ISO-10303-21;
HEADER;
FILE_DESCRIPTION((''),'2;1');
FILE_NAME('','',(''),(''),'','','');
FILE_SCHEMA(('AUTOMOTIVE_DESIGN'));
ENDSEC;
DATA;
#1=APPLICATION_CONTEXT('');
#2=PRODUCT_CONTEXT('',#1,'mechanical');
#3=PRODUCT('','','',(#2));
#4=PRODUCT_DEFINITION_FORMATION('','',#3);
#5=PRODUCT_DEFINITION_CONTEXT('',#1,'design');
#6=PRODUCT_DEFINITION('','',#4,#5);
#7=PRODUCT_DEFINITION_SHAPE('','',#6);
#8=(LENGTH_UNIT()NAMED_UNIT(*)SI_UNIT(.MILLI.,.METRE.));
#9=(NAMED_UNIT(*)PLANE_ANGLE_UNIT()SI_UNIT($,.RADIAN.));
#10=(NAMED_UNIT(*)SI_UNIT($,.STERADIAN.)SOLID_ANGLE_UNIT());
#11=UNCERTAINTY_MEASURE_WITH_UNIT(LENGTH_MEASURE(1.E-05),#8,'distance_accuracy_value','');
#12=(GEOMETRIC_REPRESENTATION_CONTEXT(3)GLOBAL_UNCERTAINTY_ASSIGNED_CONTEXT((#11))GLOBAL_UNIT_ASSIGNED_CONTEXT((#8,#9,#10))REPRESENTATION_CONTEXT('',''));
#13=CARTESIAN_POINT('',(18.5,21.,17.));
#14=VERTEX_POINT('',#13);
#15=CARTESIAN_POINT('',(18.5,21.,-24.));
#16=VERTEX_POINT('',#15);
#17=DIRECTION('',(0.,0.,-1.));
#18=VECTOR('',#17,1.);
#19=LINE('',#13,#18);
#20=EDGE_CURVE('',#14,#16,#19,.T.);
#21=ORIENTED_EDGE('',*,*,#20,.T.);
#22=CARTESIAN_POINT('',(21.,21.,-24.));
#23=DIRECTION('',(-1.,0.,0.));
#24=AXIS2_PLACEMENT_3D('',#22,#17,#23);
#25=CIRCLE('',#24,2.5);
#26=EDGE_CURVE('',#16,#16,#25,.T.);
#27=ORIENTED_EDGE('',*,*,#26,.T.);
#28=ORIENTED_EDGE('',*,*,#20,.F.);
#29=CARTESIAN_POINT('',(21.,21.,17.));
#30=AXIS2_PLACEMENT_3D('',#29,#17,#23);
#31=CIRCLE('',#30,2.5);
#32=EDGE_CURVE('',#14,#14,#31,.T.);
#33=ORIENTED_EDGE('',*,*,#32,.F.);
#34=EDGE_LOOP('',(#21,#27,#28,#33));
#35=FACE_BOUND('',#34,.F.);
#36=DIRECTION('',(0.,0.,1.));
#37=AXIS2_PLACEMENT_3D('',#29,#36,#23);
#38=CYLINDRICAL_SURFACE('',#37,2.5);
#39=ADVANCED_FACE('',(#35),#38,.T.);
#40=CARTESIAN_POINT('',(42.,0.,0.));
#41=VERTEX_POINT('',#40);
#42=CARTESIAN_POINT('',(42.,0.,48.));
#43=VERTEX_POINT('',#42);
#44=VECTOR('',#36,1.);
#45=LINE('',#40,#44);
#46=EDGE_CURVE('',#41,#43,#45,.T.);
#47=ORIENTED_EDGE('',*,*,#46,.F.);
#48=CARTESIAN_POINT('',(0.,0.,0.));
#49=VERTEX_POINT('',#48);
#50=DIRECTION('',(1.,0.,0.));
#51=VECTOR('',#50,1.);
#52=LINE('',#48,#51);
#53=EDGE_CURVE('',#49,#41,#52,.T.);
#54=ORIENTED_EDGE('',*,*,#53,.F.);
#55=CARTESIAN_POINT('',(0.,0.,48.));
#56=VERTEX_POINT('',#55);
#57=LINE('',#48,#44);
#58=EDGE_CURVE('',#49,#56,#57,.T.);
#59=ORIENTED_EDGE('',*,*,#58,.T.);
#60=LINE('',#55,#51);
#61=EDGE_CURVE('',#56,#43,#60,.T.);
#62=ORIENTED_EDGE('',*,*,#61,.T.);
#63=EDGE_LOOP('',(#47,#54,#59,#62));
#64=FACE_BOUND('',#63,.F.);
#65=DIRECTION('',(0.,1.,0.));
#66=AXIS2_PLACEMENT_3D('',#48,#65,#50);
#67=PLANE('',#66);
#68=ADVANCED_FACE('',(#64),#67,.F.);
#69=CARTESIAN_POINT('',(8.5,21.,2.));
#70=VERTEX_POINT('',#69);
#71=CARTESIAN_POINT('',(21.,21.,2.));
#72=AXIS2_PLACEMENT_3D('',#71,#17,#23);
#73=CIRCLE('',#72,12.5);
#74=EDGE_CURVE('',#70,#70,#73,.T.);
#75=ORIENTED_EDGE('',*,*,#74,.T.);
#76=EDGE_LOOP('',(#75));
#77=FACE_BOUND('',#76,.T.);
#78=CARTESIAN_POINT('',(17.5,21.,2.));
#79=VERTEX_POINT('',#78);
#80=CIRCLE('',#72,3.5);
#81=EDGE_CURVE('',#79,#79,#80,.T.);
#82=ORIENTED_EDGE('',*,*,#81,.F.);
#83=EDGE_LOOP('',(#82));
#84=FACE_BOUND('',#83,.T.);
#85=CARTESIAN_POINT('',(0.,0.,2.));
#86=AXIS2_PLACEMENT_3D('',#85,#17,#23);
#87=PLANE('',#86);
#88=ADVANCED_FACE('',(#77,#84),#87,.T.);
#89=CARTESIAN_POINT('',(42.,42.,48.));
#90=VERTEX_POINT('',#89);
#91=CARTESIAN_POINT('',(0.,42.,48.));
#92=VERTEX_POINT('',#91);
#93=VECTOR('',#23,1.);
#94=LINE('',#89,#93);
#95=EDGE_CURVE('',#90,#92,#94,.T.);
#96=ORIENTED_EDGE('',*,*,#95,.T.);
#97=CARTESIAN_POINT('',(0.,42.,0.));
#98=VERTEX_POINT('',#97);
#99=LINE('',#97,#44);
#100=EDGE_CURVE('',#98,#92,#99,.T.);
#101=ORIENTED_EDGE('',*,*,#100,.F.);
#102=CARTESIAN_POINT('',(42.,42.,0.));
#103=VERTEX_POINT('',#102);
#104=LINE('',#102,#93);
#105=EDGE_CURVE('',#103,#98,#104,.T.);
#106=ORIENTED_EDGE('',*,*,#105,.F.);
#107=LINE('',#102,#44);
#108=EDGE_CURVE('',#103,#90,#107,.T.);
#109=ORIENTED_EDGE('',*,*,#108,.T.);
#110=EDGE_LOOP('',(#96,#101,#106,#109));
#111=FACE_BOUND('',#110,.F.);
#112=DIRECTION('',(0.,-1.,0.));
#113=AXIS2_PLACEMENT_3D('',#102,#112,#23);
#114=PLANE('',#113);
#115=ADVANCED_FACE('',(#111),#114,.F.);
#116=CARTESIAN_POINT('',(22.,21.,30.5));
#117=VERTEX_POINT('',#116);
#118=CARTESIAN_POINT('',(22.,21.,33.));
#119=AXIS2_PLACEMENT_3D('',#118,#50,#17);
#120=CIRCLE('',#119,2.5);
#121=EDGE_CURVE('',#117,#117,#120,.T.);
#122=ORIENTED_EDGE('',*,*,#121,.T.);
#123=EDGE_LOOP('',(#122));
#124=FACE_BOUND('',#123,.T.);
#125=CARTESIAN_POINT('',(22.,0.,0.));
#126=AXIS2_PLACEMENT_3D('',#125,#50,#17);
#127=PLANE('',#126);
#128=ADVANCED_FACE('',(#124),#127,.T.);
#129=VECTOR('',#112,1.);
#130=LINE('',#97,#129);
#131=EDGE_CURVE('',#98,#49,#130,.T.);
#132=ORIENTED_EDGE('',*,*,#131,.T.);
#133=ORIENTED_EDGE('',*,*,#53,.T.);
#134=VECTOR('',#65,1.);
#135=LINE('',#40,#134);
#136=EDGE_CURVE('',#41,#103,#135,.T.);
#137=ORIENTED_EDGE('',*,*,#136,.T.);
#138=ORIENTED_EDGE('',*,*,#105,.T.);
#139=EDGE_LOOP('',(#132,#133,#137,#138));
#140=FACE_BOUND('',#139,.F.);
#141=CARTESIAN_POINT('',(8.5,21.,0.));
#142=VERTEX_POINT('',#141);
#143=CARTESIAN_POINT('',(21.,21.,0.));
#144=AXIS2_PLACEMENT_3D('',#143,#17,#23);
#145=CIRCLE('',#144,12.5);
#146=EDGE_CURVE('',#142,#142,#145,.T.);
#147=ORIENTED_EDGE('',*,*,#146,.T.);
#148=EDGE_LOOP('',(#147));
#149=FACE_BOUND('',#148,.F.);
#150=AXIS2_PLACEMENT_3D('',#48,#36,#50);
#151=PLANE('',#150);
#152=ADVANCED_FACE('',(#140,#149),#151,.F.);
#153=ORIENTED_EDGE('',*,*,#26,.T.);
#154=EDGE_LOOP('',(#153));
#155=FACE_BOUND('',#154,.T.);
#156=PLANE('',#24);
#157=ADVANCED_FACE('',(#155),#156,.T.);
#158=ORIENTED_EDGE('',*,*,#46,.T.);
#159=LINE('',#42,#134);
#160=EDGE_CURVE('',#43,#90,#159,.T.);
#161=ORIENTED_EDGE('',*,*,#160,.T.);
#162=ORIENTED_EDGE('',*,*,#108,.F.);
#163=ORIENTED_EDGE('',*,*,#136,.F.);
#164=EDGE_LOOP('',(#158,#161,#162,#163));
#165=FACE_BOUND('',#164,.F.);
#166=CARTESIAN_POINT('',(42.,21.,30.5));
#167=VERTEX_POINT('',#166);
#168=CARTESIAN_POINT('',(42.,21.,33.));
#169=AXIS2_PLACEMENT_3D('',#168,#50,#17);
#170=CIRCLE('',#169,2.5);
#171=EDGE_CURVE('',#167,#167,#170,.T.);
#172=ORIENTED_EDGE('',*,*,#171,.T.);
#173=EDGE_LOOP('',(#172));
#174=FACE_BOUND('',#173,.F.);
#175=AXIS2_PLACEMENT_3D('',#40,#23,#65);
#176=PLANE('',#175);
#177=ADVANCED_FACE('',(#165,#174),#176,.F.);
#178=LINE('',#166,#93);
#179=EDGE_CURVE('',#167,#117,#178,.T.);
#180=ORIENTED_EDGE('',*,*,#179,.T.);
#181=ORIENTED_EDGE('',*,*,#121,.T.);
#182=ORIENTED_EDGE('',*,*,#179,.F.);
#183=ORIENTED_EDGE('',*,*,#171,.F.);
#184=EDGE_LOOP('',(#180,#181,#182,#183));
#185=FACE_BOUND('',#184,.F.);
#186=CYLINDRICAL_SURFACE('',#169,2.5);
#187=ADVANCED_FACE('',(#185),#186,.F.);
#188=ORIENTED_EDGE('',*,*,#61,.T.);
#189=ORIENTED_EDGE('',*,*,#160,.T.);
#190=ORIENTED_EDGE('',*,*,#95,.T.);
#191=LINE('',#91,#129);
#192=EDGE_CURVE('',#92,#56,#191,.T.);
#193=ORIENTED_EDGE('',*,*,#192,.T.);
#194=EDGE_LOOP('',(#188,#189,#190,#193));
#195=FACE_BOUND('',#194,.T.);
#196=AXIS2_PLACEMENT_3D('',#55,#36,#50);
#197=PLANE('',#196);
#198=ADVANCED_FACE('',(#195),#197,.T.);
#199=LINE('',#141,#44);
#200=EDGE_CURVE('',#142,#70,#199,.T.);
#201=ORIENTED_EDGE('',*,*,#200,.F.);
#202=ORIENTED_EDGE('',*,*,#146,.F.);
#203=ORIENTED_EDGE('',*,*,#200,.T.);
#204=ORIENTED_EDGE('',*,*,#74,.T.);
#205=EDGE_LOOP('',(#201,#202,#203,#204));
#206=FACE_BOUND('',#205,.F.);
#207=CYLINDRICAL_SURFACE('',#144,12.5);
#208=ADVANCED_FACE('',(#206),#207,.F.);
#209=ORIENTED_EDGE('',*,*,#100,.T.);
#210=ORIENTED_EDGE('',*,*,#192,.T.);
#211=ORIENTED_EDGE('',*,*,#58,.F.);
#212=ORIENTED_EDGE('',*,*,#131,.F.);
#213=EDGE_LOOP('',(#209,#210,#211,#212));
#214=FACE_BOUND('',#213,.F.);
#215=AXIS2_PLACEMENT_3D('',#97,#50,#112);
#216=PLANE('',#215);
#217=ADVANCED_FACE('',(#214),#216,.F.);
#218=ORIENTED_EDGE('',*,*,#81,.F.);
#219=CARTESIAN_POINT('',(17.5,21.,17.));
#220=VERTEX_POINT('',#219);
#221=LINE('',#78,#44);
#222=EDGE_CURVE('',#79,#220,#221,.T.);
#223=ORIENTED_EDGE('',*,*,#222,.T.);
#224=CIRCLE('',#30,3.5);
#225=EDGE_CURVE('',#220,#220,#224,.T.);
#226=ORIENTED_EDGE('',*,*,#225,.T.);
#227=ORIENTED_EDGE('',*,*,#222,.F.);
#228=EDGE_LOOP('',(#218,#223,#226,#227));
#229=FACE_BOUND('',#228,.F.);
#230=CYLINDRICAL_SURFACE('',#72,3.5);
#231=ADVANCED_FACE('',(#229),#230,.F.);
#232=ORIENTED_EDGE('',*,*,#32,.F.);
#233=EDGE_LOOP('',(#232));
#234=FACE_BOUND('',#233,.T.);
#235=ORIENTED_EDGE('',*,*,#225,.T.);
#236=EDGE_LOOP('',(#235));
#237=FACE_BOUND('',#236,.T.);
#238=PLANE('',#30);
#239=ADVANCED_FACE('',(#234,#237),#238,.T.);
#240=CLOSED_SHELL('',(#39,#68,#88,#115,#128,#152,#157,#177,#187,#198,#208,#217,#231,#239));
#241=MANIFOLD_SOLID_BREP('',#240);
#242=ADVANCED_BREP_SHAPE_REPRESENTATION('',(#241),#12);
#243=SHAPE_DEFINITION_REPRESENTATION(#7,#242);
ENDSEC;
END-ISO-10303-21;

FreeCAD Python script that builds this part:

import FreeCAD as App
import Part
import Sketcher

V = App.Vector
Q = App.Units.Quantity

doc = App.newDocument("Part")
body = doc.addObject("PartDesign::Body", "Body")

# Sketch on XY plane
sketch1 = body.newObject("Sketcher::SketchObject", "Sketch")
sketch1.AttachmentSupport = (doc.getObject("XY_Plane"), [""])
sketch1.MapMode = "FlatFace"
sketch1.addGeometry([
    Part.LineSegment(V(0, 42, 0), V(0, 0, 0)),
    Part.LineSegment(V(0, 0, 0), V(42, 0, 0)),
    Part.LineSegment(V(42, 0, 0), V(42, 42, 0)),
    Part.LineSegment(V(42, 42, 0), V(0, 42, 0)),
], False)
sketch1.addConstraint([
    Sketcher.Constraint("Coincident", 0, 2, 1, 1),
    Sketcher.Constraint("Coincident", 1, 2, 2, 1),
    Sketcher.Constraint("Coincident", 2, 2, 3, 1),
    Sketcher.Constraint("Coincident", 3, 2, 0, 1),
    Sketcher.Constraint("Vertical", 0),
    Sketcher.Constraint("Horizontal", 1),
    Sketcher.Constraint("Vertical", 2),
    Sketcher.Constraint("Horizontal", 3),
    Sketcher.Constraint("Coincident", 0, 2, -1, 1),
    Sketcher.Constraint("Equal", 3, 0),
    Sketcher.Constraint("DistanceX", 1, 1, 1, 2, Q("42 mm")),
])
pad1 = body.newObject("PartDesign::Pad", "Pad")
pad1.Profile = sketch1
pad1.Length = 48

# Sketch on XY plane
sketch2 = body.newObject("Sketcher::SketchObject", "Sketch001")
sketch2.AttachmentSupport = (doc.getObject("XY_Plane"), [""])
sketch2.MapMode = "FlatFace"
sketch2.addGeometry(Part.Circle(V(21, 21, 0), V(0, 0, 1), 12.5), False)
sketch2.addConstraint([
    Sketcher.Constraint("Diameter", 0, Q("25 mm")),
    Sketcher.Constraint("DistanceX", -1, 1, 0, 3, Q("21 mm")),
    Sketcher.Constraint("DistanceY", -1, 1, 0, 3, Q("21 mm")),
])
pocket1 = body.newObject("PartDesign::Pocket", "Pocket")
pocket1.Profile = sketch2
pocket1.Length = 2
pocket1.Reversed = True

# Sketch on XY plane
sketch3 = body.newObject("Sketcher::SketchObject", "Sketch002")
sketch3.AttachmentSupport = (doc.getObject("XY_Plane"), [""])
sketch3.MapMode = "FlatFace"
sketch3.AttachmentOffset = App.Placement(V(0, 0, 2), App.Rotation())
sketch3.addGeometry(Part.Circle(V(21, 21, 0), V(0, 0, 1), 3.5), False)
sketch3.addConstraint([
    Sketcher.Constraint("Diameter", 0, Q("7 mm")),
    Sketcher.Constraint("DistanceX", -1, 1, 0, 3, Q("21 mm")),
    Sketcher.Constraint("DistanceY", -1, 1, 0, 3, Q("21 mm")),
])
pocket2 = body.newObject("PartDesign::Pocket", "Pocket001")
pocket2.Profile = sketch3
pocket2.Length = 15
pocket2.Reversed = True

# Sketch on XY plane
sketch4 = body.newObject("Sketcher::SketchObject", "Sketch003")
sketch4.AttachmentSupport = (doc.getObject("XY_Plane"), [""])
sketch4.MapMode = "FlatFace"
sketch4.AttachmentOffset = App.Placement(V(0, 0, 17), App.Rotation())
sketch4.addGeometry(Part.Circle(V(21, 21, 0), V(0, 0, 1), 2.5), False)
sketch4.addConstraint([
    Sketcher.Constraint("Diameter", 0, Q("5 mm")),
    Sketcher.Constraint("DistanceX", -1, 1, 0, 3, Q("21 mm")),
    Sketcher.Constraint("DistanceY", -1, 1, 0, 3, Q("21 mm")),
])
pad2 = body.newObject("PartDesign::Pad", "Pad001")
pad2.Profile = sketch4
pad2.Length = 41
pad2.Reversed = True

# Sketch on YZ plane
sketch5 = body.newObject("Sketcher::SketchObject", "Sketch004")
sketch5.AttachmentSupport = (doc.getObject("YZ_Plane"), [""])
sketch5.MapMode = "FlatFace"
sketch5.AttachmentOffset = App.Placement(V(0, 0, 42), App.Rotation())
sketch5.addGeometry(Part.Circle(V(21, 33, 0), V(0, 0, 1), 2.5), False)
sketch5.addConstraint([
    Sketcher.Constraint("Diameter", 0, Q("5 mm")),
    Sketcher.Constraint("DistanceX", -1, 1, 0, 3, Q("21 mm")),
    Sketcher.Constraint("DistanceY", -1, 1, 0, 3, Q("33 mm")),
])
pocket3 = body.newObject("PartDesign::Pocket", "Pocket002")
pocket3.Profile = sketch5
pocket3.Length = 20

doc.recompute()
